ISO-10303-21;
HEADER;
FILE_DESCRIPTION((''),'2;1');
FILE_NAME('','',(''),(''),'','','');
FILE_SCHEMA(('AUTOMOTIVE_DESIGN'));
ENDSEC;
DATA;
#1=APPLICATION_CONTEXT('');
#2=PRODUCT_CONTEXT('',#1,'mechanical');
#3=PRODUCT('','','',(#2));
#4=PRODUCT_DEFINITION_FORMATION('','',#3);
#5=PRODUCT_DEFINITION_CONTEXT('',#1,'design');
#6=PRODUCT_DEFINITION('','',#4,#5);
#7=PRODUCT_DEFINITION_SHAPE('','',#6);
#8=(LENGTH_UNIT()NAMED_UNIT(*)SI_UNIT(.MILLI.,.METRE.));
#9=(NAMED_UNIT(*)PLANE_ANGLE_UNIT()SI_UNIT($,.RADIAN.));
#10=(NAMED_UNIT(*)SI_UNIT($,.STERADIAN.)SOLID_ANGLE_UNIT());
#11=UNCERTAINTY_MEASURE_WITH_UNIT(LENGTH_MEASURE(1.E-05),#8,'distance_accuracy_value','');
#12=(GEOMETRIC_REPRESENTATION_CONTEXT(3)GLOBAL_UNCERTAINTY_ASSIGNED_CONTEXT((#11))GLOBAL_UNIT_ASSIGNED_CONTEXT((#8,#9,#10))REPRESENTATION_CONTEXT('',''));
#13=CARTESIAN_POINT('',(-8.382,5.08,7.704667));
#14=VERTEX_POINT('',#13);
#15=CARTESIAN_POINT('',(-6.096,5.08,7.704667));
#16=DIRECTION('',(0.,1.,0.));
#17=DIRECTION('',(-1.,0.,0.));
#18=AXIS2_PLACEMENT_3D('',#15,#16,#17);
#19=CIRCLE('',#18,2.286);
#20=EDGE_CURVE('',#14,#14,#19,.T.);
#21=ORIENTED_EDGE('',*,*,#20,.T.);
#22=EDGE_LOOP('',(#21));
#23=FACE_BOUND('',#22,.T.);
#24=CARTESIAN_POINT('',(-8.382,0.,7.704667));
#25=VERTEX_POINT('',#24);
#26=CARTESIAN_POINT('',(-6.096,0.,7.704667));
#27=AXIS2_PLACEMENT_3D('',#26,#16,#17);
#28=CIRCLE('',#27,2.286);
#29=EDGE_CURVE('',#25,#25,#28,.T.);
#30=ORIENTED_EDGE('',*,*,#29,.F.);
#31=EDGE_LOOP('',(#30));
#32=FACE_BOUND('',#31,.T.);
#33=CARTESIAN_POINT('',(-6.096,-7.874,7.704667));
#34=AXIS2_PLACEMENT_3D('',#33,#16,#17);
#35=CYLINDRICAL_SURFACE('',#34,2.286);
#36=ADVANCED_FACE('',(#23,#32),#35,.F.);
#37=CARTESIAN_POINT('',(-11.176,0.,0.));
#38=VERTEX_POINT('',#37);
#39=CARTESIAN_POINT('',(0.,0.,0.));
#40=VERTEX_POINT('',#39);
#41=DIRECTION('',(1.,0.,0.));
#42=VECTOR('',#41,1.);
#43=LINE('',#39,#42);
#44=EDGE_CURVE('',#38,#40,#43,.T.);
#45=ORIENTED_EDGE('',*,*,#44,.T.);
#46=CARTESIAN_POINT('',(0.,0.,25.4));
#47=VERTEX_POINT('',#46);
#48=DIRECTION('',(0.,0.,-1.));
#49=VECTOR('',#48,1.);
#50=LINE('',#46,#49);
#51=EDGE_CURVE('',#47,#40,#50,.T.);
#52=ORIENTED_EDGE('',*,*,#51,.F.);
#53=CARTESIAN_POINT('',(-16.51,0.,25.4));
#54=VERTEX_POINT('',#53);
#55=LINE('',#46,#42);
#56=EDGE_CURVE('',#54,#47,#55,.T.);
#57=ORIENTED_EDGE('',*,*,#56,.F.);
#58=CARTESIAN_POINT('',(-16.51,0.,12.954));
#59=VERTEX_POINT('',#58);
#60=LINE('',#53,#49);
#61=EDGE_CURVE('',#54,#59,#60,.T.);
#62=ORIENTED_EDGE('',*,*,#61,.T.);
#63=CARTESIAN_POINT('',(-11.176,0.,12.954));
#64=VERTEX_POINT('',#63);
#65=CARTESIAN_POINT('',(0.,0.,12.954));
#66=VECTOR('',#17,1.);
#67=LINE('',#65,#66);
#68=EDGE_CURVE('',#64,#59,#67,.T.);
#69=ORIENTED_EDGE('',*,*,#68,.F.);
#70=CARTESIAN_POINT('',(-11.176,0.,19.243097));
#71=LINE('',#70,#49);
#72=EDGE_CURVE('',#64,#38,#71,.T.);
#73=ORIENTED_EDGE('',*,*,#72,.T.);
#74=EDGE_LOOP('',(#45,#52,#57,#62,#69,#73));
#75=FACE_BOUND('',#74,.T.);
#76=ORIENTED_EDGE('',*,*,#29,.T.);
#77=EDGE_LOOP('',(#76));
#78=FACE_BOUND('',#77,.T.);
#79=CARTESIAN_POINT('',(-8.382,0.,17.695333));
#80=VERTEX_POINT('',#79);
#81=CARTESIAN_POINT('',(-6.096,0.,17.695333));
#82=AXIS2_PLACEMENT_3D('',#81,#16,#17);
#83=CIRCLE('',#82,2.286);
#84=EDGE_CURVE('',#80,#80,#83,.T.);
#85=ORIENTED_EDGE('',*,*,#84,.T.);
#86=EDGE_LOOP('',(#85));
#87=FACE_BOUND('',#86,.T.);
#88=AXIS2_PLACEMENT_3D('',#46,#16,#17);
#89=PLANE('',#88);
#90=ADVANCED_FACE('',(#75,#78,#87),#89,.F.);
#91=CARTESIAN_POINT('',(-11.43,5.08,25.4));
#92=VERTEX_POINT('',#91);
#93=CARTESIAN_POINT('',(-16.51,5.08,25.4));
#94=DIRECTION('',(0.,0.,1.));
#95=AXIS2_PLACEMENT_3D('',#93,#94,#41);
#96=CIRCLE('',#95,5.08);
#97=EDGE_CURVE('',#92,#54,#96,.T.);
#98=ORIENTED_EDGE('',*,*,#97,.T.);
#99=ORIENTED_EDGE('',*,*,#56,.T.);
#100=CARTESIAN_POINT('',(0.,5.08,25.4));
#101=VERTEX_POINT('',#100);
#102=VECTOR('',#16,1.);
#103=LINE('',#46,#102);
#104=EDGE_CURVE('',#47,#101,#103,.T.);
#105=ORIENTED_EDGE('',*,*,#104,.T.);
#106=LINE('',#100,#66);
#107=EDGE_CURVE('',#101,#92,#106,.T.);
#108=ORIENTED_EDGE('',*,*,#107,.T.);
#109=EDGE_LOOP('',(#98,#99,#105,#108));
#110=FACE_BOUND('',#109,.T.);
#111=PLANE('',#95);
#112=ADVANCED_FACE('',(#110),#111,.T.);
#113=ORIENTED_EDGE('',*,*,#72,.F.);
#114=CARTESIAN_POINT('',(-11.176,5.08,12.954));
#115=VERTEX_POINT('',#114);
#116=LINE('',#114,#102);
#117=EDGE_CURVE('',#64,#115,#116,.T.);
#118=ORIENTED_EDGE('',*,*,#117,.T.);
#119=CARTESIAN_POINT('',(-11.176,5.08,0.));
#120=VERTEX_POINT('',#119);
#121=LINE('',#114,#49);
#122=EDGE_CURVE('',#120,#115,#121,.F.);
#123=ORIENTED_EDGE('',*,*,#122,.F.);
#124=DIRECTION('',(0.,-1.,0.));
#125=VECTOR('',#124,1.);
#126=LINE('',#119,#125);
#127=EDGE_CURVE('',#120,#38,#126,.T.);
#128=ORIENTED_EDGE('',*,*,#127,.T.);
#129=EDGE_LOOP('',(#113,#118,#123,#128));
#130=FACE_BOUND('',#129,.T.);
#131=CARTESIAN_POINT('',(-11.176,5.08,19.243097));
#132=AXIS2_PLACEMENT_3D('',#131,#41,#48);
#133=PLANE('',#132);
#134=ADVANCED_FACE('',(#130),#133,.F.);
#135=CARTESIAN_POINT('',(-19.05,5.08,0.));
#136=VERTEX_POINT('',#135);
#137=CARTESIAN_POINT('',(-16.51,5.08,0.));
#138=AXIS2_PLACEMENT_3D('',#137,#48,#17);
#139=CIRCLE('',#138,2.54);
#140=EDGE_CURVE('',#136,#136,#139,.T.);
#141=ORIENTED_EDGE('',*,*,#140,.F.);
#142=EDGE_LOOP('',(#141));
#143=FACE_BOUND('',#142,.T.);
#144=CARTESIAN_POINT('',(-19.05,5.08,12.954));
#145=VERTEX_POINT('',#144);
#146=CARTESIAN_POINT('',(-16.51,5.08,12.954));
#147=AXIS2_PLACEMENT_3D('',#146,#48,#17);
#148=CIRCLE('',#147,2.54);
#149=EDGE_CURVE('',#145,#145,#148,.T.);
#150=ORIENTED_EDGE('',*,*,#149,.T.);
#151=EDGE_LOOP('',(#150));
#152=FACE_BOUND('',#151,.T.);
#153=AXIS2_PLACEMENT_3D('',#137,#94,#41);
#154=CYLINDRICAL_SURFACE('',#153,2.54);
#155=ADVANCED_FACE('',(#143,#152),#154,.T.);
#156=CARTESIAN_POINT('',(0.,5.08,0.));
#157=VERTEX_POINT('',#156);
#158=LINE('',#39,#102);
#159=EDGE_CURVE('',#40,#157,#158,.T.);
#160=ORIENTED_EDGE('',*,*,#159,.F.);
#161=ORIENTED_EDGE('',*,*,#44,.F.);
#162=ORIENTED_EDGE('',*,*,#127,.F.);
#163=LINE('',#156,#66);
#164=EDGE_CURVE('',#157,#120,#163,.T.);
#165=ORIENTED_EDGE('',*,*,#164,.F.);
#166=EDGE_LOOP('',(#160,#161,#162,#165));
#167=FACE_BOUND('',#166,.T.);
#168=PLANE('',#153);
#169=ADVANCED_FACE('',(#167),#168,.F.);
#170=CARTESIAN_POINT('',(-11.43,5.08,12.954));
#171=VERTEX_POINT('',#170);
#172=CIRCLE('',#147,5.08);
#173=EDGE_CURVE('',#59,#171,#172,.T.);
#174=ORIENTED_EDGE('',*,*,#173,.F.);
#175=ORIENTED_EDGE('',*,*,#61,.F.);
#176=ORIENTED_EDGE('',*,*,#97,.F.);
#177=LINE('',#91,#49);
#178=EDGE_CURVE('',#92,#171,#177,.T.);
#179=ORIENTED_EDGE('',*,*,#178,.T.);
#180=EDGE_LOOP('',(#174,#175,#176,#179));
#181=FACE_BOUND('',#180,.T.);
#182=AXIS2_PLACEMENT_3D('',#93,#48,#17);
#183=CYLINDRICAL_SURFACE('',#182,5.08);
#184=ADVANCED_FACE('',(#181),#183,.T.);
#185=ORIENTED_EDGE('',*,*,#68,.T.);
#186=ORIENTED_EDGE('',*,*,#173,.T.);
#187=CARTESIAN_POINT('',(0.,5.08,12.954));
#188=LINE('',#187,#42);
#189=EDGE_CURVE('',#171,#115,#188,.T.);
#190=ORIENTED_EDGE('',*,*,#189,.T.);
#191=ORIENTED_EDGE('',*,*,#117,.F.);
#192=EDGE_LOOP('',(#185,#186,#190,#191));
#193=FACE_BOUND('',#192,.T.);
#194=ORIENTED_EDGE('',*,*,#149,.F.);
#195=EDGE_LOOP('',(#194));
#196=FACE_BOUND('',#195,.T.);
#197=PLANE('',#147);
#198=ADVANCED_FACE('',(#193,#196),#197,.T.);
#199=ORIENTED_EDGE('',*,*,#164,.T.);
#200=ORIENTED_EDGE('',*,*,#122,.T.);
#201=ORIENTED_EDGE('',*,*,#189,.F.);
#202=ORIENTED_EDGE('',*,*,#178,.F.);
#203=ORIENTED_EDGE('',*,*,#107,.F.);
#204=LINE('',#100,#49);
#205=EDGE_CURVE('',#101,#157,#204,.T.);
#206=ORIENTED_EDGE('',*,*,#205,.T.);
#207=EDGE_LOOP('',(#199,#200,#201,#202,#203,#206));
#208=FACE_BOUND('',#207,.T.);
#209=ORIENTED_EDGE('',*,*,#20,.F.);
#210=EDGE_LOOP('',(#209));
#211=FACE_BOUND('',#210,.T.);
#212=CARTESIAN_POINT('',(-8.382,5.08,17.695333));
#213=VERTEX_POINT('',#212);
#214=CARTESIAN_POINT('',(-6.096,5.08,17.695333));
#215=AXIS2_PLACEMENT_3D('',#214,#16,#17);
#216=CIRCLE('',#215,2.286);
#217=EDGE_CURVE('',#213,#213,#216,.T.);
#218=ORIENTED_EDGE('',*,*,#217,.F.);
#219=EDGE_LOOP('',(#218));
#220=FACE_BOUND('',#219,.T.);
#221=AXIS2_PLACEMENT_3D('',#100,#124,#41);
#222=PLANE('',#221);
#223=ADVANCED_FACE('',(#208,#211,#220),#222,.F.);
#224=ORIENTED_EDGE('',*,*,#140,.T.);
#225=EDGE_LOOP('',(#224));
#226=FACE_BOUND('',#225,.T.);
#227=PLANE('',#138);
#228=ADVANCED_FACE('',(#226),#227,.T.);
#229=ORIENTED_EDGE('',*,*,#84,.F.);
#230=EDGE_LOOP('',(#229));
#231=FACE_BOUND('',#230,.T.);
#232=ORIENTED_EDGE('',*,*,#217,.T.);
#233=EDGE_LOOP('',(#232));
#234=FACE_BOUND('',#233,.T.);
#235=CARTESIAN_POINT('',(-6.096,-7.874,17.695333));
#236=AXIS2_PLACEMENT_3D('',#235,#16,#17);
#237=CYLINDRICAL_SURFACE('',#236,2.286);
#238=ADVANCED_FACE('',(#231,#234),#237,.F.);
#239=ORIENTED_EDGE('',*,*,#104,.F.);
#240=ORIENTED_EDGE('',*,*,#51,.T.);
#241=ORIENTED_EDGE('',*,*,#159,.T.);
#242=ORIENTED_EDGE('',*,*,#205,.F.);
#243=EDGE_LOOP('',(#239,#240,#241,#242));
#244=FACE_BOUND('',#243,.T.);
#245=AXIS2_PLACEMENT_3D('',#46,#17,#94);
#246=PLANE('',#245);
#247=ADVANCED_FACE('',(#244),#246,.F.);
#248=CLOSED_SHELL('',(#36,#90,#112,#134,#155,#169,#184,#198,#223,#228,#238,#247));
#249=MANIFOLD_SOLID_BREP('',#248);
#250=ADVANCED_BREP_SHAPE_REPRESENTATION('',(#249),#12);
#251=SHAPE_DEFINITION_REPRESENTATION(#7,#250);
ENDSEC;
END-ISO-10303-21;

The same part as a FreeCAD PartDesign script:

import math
import FreeCAD as App
import Part
import Sketcher
Q = App.Units.Quantity

doc = App.newDocument("Part")
body = doc.addObject("PartDesign::Body", "Body")

# Sketch on XY plane
sketch1 = body.newObject("Sketcher::SketchObject", "Sketch")
sketch1.AttachmentSupport = (doc.getObject("XY_Plane"), [""])
sketch1.MapMode = "FlatFace"
sketch1.addGeometry(Part.LineSegment(App.Vector(-17, 0, 0), App.Vector(0, 0, 0)), False)
sketch1.addGeometry(Part.LineSegment(App.Vector(0, 0, 0), App.Vector(0, 5, 0)), False)
sketch1.addGeometry(Part.LineSegment(App.Vector(0, 5, 0), App.Vector(-11, 5, 0)), False)
sketch1.addGeometry(Part.ArcOfCircle(Part.Circle(App.Vector(-17, 5, 0), App.Vector(0, 0, 1), 5), math.radians(0), math.radians(270)), False)
sketch1.addConstraint(Sketcher.Constraint("Coincident", 0, 2, 1, 1))
sketch1.addConstraint(Sketcher.Constraint("Coincident", 1, 2, 2, 1))
sketch1.addConstraint(Sketcher.Constraint("Coincident", 2, 2, 3, 1))
sketch1.addConstraint(Sketcher.Constraint("Tangent", 3, 2, 0, 1))
sketch1.addConstraint(Sketcher.Constraint("Horizontal", 0))
sketch1.addConstraint(Sketcher.Constraint("Vertical", 1))
sketch1.addConstraint(Sketcher.Constraint("Horizontal", 2))
sketch1.addConstraint(Sketcher.Constraint("Coincident", 0, 2, -1, 1))
sketch1.addConstraint(Sketcher.Constraint("Horizontal", 3, 3, 1, 2))
sketch1.addConstraint(Sketcher.Constraint("Radius", 3, Q("0.2 in")))
sketch1.addConstraint(Sketcher.Constraint("DistanceX", 0, 1, 0, 2, Q("0.65 in")))
pad1 = body.newObject("PartDesign::Pad", "Pad")
pad1.Profile = sketch1
pad1.Length = Q("1 in")

# Sketch on XZ plane
sketch2 = body.newObject("Sketcher::SketchObject", "Sketch001")
sketch2.AttachmentSupport = (doc.getObject("XZ_Plane"), [""])
sketch2.MapMode = "FlatFace"
sketch2.AttachmentOffset = App.Placement(App.Vector(0, 0, -0.2 * 25.4), App.Rotation())
sketch2.addGeometry(Part.Circle(App.Vector(-6.1, 17.7, 0), App.Vector(0, 0, 1), 2.3), False)
sketch2.addGeometry(Part.Circle(App.Vector(-6.1, 7.7, 0), App.Vector(0, 0, 1), 2.3), False)
sketch2.addConstraint(Sketcher.Constraint("Equal", 0, 1))
sketch2.addConstraint(Sketcher.Constraint("Vertical", 0, 3, 1, 3))
sketch2.addConstraint(Sketcher.Constraint("Diameter", 0, Q("0.18 in")))
sketch2.addConstraint(Sketcher.Constraint("DistanceX", 0, 3, -1, 1, Q("0.24 in")))
sketch2.addConstraint(Sketcher.Constraint("DistanceY", -1, 1, 0, 3, Q("17.695333 mm")))
sketch2.addConstraint(Sketcher.Constraint("DistanceY", -1, 1, 1, 3, Q("7.704667 mm")))
pocket1 = body.newObject("PartDesign::Pocket", "Pocket")
pocket1.Profile = sketch2
pocket1.Length = Q("0.51 in")
pocket1.Reversed = True

# Sketch on XY plane
sketch3 = body.newObject("Sketcher::SketchObject", "Sketch002")
sketch3.AttachmentSupport = (doc.getObject("XY_Plane"), [""])
sketch3.MapMode = "FlatFace"
sketch3.addGeometry(Part.Circle(App.Vector(-17, 5, 0), App.Vector(0, 0, 1), 5), False)
sketch3.addConstraint(Sketcher.Constraint("Diameter", 0, Q("0.42 in")))
sketch3.addConstraint(Sketcher.Constraint("DistanceY", -1, 1, 0, 3, Q("0.2 in")))
sketch3.addConstraint(Sketcher.Constraint("DistanceX", 0, 3, -1, 1, Q("0.65 in")))
pocket2 = body.newObject("PartDesign::Pocket", "Pocket001")
pocket2.Profile = sketch3
pocket2.Length = Q("0.51 in")
pocket2.Reversed = True

# Sketch on XY plane
sketch4 = body.newObject("Sketcher::SketchObject", "Sketch003")
sketch4.AttachmentSupport = (doc.getObject("XY_Plane"), [""])
sketch4.MapMode = "FlatFace"
sketch4.AttachmentOffset = App.Placement(App.Vector(0, 0, 0.51 * 25.4), App.Rotation())
sketch4.addGeometry(Part.Circle(App.Vector(-16.5, 5.1, 0), App.Vector(0, 0, 1), 2.5), False)
sketch4.addConstraint(Sketcher.Constraint("Diameter", 0, Q("0.2 in")))
sketch4.addConstraint(Sketcher.Constraint("DistanceY", -1, 1, 0, 3, Q("0.2 in")))
sketch4.addConstraint(Sketcher.Constraint("DistanceX", 0, 3, -1, 1, Q("0.65 in")))
pad2 = body.newObject("PartDesign::Pad", "Pad001")
pad2.Profile = sketch4
pad2.Length = Q("0.51 in")
pad2.Reversed = True

# Sketch on XY plane
sketch5 = body.newObject("Sketcher::SketchObject", "Sketch004")
sketch5.AttachmentSupport = (doc.getObject("XY_Plane"), [""])
sketch5.MapMode = "FlatFace"
sketch5.addGeometry(Part.LineSegment(App.Vector(-11.2, 5.1, 0), App.Vector(-11.2, 0, 0)), False)
sketch5.addGeometry(Part.LineSegment(App.Vector(-11.2, 0, 0), App.Vector(-14.9, 0, 0)), False)
sketch5.addGeometry(Part.ArcOfCircle(Part.Circle(App.Vector(-16.5, 5.1, 0), App.Vector(0, 0, 1), 5.3), math.radians(-72), math.radians(0)), False)
sketch5.addConstraint(Sketcher.Constraint("Coincident", 0, 2, 1, 1))
sketch5.addConstraint(Sketcher.Constraint("Coincident", 1, 2, 2, 1))
sketch5.addConstraint(Sketcher.Constraint("Tangent", 2, 2, 0, 1))
sketch5.addConstraint(Sketcher.Constraint("Vertical", 0))
sketch5.addConstraint(Sketcher.Constraint("Horizontal", 1))
sketch5.addConstraint(Sketcher.Constraint("PointOnObject", 0, 2, -1))
sketch5.addConstraint(Sketcher.Constraint("Radius", 2, Q("0.21 in")))
sketch5.addConstraint(Sketcher.Constraint("DistanceY", 0, 2, 0, 1, Q("0.2 in")))
sketch5.addConstraint(Sketcher.Constraint("DistanceX", 2, 3, -1, 1, Q("0.65 in")))
pocket3 = body.newObject("PartDesign::Pocket", "Pocket002")
pocket3.Profile = sketch5
pocket3.Length = Q("0.51 in")
pocket3.Reversed = True

doc.recompute()
